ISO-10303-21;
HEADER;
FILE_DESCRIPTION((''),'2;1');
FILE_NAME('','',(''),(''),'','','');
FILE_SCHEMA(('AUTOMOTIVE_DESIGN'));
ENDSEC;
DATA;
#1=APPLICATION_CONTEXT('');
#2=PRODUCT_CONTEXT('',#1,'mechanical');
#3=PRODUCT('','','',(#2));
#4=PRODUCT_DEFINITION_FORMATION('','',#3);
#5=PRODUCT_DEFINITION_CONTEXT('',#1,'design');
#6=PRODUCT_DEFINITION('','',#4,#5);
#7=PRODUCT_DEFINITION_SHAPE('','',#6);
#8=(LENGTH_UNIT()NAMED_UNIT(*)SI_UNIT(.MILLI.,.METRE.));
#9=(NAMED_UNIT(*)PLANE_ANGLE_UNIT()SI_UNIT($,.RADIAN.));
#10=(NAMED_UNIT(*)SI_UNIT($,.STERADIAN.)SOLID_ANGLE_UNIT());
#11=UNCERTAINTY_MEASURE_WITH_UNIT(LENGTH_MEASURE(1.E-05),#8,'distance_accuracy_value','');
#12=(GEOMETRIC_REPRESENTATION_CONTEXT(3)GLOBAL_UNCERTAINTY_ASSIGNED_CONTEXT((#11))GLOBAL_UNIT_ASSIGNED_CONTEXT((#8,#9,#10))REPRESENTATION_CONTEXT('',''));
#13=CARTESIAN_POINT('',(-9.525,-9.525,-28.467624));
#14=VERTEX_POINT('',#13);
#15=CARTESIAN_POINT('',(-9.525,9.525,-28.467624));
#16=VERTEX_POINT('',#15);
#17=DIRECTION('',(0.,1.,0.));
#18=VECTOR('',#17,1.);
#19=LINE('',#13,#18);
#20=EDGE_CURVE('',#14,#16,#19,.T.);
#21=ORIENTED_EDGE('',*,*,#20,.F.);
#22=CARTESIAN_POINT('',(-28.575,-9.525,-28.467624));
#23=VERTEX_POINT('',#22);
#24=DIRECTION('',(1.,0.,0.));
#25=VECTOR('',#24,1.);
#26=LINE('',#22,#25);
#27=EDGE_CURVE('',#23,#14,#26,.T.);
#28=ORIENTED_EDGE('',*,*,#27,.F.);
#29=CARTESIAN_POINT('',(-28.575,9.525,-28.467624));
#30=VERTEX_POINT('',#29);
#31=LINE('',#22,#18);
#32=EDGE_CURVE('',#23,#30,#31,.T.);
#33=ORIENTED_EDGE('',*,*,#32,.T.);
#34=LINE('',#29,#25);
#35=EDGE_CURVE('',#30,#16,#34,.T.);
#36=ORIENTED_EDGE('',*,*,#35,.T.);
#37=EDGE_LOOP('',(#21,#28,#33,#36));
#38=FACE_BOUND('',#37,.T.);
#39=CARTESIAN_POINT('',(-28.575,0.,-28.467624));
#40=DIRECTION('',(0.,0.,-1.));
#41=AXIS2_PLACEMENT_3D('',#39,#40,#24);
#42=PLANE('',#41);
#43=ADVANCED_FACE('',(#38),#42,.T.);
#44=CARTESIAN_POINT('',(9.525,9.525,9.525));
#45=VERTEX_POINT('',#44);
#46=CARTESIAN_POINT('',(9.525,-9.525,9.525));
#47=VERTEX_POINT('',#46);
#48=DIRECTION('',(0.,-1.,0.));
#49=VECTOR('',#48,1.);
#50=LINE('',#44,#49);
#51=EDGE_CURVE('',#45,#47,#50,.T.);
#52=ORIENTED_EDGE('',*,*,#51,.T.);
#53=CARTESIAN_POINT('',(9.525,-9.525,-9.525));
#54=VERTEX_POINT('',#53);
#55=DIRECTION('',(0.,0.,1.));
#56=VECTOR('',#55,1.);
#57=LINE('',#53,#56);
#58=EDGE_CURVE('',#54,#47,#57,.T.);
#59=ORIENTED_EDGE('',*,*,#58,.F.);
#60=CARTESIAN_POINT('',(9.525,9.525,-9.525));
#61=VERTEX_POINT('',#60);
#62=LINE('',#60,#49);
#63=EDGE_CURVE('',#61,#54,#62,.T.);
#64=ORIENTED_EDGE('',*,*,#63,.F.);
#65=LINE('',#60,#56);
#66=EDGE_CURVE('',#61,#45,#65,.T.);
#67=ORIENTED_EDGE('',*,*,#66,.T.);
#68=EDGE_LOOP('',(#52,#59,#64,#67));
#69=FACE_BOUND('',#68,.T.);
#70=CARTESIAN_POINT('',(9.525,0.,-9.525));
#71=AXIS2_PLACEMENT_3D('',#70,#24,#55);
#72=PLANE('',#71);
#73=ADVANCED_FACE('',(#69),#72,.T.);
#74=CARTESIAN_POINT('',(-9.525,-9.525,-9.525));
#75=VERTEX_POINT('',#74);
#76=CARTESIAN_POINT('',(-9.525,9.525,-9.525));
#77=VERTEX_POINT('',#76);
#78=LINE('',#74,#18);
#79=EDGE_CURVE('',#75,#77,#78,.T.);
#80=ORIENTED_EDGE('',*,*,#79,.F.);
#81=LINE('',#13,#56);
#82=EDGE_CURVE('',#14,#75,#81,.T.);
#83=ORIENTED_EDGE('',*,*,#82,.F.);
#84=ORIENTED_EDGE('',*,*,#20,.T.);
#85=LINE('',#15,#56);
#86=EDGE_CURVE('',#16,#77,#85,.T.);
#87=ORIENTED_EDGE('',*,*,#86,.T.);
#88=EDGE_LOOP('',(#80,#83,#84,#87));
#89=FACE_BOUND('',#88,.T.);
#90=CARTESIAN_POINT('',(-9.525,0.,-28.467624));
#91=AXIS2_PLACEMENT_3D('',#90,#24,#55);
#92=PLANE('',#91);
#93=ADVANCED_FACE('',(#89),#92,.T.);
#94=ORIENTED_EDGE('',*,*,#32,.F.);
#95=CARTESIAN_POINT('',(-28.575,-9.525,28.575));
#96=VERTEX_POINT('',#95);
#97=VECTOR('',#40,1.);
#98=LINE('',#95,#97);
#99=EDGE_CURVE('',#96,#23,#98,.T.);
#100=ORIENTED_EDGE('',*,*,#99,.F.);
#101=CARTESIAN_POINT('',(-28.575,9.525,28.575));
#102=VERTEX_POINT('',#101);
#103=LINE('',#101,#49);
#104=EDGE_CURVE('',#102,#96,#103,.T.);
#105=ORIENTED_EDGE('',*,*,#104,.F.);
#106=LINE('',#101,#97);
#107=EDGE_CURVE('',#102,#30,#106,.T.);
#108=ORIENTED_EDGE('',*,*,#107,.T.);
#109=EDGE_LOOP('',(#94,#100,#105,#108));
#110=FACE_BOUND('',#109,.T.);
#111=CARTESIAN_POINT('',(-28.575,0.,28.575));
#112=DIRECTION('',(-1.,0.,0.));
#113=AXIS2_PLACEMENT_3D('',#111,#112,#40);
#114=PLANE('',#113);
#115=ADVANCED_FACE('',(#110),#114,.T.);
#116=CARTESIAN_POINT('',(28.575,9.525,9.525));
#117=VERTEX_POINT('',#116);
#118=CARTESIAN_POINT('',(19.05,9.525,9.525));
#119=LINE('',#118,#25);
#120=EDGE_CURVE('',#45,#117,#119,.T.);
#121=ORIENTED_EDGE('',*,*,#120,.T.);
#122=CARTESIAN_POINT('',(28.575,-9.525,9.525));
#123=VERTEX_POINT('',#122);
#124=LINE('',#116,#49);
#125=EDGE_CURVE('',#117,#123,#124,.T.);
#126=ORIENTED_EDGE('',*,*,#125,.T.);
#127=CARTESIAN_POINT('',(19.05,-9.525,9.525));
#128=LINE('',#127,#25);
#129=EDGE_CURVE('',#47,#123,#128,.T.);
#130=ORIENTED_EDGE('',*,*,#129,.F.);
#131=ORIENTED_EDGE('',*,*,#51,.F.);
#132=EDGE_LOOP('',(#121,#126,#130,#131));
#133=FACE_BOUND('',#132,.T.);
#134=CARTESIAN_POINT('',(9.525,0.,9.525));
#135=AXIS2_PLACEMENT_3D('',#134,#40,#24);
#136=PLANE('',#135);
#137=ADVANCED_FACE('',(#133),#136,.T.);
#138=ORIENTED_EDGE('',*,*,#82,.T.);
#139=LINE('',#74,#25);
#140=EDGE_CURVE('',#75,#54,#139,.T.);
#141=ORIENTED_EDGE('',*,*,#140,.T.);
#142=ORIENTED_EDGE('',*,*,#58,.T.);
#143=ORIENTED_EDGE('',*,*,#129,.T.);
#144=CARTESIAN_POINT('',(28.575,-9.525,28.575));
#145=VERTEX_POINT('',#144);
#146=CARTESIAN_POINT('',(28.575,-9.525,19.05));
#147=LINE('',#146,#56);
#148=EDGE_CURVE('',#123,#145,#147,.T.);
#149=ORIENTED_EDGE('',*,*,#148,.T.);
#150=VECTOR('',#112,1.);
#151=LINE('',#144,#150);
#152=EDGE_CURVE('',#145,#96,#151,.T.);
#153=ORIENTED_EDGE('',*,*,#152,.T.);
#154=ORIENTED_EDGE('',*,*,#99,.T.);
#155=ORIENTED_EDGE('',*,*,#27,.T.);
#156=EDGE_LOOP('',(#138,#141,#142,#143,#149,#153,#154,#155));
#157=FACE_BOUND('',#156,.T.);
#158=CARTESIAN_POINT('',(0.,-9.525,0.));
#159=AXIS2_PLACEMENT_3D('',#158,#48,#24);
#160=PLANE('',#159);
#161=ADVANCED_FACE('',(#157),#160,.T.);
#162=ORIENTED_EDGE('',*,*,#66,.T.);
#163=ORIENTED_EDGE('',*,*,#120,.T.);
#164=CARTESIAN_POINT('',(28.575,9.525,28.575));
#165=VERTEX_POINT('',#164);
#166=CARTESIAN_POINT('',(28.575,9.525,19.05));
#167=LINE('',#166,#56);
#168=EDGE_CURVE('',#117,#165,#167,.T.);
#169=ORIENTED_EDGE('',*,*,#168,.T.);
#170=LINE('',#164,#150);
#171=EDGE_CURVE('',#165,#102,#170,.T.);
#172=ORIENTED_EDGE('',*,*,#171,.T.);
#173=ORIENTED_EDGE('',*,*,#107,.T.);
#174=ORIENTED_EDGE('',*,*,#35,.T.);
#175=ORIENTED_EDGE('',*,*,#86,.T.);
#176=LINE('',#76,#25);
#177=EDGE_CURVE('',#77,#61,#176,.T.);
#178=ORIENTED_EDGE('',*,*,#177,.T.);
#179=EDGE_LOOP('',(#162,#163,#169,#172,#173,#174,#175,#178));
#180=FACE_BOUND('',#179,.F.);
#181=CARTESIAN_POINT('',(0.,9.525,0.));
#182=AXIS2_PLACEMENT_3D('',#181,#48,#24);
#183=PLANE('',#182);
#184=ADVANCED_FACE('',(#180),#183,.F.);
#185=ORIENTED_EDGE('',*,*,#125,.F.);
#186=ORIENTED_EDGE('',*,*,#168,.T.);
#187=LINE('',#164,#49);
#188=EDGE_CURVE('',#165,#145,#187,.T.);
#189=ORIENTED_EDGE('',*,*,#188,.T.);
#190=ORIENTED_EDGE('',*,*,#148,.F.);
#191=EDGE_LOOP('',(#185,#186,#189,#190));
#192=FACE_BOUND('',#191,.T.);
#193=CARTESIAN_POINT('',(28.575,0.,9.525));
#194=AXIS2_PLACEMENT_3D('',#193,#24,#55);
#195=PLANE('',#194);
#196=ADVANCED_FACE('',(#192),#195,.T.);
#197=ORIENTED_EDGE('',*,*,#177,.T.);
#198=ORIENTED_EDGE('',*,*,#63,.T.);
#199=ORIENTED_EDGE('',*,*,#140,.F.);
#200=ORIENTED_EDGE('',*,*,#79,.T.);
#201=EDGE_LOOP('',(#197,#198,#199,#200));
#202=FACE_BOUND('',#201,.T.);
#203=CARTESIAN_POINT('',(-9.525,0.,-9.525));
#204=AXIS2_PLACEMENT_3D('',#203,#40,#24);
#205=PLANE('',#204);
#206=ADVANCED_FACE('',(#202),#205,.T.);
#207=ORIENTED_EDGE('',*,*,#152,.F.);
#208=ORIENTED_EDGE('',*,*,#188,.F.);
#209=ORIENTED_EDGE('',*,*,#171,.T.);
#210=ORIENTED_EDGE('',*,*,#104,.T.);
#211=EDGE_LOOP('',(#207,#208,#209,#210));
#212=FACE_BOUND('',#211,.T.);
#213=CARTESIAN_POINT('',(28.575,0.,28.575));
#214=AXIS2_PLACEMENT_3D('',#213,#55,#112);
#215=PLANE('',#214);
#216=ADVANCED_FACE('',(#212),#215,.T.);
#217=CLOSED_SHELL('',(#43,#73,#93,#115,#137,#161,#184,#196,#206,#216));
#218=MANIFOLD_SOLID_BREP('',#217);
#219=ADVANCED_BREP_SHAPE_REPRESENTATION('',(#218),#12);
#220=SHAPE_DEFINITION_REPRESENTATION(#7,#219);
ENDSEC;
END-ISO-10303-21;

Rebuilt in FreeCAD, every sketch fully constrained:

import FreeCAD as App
import Part
import Sketcher

V = App.Vector
Q = App.Units.Quantity


def add_polygon(sketch, points):
    """Adds a closed chain of lines whose ends are joined by coincident constraints."""
    first, n = sketch.GeometryCount, len(points)
    for a, b in zip(points, points[1:] + points[:1]):
        sketch.addGeometry(Part.LineSegment(App.Vector(*a, 0), App.Vector(*b, 0)), False)
    for i in range(n):
        sketch.addConstraint(Sketcher.Constraint("Coincident", first + i, 2, first + (i + 1) % n, 1))

doc = App.newDocument("Part")
body = doc.addObject("PartDesign::Body", "Body")

sketch1 = body.newObject("Sketcher::SketchObject", "Sketch")
sketch1.AttachmentSupport = (doc.getObject("XZ_Plane"), [""])
sketch1.MapMode = "FlatFace"
add_polygon(sketch1, [(-10, -10), (10, -10), (10, 10), (29, 10), (29, 29), (-29, 29), (-29, -28), (-10, -28)])
sketch1.addConstraint(Sketcher.Constraint("Horizontal", 0))
sketch1.addConstraint(Sketcher.Constraint("Vertical", 1))
sketch1.addConstraint(Sketcher.Constraint("Horizontal", 2))
sketch1.addConstraint(Sketcher.Constraint("Vertical", 3))
sketch1.addConstraint(Sketcher.Constraint("Horizontal", 4))
sketch1.addConstraint(Sketcher.Constraint("Vertical", 5))
sketch1.addConstraint(Sketcher.Constraint("Horizontal", 6))
sketch1.addConstraint(Sketcher.Constraint("Vertical", 7))
sketch1.addConstraint(Sketcher.Constraint("Symmetric", 1, 2, 7, 2, -1, 1))
sketch1.addConstraint(Sketcher.Constraint("Equal", 0, 2))
sketch1.addConstraint(Sketcher.Constraint("Equal", 2, 6))
sketch1.addConstraint(Sketcher.Constraint("Equal", 6, 1))
sketch1.addConstraint(Sketcher.Constraint("Equal", 1, 3))
sketch1.addConstraint(Sketcher.Constraint("DistanceX", 0, 1, 0, 2, Q("0.75 in")))
sketch1.addConstraint(Sketcher.Constraint("DistanceY", 5, 2, 5, 1, 57.042624))
pad1 = body.newObject("PartDesign::Pad", "Pad")
pad1.Profile = sketch1
pad1.Length = Q("0.75 in")
pad1.Midplane = True

doc.recompute()
